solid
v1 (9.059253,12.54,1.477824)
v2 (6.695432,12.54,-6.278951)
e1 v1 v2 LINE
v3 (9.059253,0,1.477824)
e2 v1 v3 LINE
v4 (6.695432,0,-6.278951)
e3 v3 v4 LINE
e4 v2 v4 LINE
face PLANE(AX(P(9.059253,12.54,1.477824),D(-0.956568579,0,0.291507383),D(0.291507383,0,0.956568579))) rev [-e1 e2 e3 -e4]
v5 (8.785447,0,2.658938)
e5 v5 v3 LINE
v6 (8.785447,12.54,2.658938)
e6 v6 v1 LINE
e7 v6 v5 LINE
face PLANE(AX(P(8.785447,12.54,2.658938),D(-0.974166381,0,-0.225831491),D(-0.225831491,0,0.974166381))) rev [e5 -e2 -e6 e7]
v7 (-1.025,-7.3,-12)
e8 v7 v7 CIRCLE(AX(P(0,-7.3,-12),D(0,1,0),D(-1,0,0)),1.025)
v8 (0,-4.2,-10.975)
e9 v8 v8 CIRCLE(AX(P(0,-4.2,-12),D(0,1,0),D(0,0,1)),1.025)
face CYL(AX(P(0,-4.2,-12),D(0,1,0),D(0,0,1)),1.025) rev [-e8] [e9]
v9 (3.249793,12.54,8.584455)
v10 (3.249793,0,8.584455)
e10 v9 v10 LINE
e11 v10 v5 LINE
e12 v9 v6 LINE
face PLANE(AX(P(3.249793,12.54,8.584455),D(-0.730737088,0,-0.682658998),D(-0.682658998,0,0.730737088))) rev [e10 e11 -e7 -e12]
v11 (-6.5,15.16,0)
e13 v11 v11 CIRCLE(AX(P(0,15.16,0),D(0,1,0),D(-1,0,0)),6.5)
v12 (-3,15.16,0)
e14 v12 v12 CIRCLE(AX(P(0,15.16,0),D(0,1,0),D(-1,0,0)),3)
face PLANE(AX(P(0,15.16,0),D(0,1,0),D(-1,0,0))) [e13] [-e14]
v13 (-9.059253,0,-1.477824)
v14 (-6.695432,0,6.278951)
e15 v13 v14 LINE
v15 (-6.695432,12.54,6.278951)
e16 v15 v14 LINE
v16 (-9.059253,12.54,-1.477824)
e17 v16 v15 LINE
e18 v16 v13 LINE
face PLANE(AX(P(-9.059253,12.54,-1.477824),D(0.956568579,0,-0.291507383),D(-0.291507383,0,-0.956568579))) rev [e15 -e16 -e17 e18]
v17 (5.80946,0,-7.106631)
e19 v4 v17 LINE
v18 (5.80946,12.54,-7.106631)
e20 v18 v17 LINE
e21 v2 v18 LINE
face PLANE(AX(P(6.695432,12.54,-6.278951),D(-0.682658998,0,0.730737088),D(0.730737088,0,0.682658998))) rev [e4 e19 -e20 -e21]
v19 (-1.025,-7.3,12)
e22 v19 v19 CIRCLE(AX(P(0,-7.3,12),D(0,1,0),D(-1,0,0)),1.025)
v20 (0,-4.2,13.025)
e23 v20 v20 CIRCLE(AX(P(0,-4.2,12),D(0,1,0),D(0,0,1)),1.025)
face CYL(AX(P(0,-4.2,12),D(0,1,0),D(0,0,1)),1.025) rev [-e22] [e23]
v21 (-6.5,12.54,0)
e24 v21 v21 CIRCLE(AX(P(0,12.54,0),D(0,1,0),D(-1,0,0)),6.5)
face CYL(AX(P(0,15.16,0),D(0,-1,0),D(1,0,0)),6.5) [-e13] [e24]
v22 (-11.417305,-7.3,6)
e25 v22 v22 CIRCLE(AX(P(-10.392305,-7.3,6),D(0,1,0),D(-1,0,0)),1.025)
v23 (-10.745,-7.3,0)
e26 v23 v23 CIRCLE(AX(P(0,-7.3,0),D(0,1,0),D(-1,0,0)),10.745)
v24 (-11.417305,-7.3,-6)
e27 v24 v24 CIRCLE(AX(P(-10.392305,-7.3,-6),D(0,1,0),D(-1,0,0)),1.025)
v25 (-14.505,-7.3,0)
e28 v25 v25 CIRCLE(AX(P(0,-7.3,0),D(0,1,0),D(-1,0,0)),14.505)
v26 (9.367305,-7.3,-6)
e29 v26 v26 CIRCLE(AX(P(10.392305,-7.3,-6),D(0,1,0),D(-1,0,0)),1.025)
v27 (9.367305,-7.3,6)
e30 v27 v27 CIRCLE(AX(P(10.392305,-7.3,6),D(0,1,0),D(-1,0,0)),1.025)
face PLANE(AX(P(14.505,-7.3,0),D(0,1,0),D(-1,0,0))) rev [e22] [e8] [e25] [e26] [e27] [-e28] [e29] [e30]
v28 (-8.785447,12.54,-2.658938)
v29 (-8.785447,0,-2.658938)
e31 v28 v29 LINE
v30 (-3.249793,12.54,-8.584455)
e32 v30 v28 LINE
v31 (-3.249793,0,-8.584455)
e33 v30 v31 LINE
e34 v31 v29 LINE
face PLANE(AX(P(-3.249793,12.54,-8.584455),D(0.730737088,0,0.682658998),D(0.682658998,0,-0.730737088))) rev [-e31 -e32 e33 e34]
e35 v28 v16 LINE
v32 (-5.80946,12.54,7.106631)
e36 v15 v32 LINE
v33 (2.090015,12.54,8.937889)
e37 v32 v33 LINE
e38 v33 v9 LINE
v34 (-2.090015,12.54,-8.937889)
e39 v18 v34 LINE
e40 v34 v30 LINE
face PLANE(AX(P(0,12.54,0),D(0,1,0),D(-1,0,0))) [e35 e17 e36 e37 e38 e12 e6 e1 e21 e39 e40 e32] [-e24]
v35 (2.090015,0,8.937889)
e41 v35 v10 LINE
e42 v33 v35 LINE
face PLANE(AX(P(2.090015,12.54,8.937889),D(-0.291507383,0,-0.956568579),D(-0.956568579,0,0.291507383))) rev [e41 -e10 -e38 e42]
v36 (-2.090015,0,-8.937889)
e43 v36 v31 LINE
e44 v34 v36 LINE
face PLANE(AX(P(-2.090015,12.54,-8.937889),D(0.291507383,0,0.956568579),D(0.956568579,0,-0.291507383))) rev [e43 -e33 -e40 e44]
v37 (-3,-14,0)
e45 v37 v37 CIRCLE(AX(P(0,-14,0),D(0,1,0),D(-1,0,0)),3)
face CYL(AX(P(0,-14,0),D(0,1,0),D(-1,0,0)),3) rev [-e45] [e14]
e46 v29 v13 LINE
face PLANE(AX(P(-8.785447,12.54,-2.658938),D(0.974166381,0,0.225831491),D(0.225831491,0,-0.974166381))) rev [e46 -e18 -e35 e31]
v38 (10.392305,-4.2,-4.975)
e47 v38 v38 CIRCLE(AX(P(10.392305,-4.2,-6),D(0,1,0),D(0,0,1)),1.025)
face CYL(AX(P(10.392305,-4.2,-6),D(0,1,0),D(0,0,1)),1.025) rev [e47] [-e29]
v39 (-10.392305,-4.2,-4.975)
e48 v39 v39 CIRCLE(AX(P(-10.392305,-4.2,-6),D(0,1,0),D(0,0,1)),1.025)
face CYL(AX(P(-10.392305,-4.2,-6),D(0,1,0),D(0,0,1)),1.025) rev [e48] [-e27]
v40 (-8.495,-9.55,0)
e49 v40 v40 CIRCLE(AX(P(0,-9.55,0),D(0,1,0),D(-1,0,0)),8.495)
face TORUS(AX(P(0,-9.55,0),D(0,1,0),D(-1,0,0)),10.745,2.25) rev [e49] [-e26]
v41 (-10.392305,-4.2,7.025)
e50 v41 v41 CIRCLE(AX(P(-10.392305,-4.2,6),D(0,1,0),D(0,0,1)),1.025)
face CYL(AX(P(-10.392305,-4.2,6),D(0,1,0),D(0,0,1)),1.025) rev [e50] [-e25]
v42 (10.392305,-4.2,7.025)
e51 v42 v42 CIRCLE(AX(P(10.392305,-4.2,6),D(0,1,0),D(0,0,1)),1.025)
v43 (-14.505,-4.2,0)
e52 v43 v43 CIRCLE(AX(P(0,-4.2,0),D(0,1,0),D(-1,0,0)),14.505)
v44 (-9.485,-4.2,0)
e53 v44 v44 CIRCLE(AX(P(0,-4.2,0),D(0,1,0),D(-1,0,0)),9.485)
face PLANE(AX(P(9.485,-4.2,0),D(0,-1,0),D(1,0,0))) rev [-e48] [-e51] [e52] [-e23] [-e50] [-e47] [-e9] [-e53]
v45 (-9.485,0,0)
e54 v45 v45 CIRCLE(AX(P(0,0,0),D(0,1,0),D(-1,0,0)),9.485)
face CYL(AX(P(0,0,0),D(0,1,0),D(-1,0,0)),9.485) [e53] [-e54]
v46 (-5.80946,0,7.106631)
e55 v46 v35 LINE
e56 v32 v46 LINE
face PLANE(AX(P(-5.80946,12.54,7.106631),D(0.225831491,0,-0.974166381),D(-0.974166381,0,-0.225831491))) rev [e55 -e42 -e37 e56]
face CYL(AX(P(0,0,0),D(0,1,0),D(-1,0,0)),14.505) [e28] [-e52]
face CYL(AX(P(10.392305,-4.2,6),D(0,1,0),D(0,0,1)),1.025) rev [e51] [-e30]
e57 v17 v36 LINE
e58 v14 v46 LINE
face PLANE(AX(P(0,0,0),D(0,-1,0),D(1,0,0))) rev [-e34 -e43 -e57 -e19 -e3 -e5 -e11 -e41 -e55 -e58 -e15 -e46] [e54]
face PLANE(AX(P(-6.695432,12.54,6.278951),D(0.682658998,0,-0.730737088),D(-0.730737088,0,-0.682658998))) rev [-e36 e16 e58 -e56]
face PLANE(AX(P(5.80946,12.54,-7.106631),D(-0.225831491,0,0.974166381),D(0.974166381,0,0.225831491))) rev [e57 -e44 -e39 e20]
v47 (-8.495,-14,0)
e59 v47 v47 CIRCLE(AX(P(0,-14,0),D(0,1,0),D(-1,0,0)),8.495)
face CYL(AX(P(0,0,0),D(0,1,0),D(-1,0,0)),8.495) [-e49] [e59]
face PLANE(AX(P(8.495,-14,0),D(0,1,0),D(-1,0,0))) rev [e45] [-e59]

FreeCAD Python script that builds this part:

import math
import FreeCAD as App
import Part
import Sketcher
from FreeCAD import Vector

doc = App.newDocument("Part")
body = doc.addObject("PartDesign::Body", "Body")

# Sketch on XY plane
sketch1 = body.newObject("Sketcher::SketchObject", "Sketch")
sketch1.AttachmentSupport = (doc.getObject("XY_Plane"), [""])
sketch1.MapMode = "FlatFace"
sketch1.addGeometry([
    Part.LineSegment(Vector(9.5, 0, 0), Vector(0, 0, 0)),  # 0
    Part.LineSegment(Vector(0, 0, 0), Vector(0, -14, 0)),  # 1
    Part.LineSegment(Vector(0, -14, 0), Vector(8.5, -14, 0)),  # 2
    Part.LineSegment(Vector(8.5, -14, 0), Vector(8.5, -9.6, 0)),  # 3
    Part.ArcOfCircle(Part.Circle(Vector(10.7, -9.5, 0), Vector(0, 0, 1), 2.2), math.radians(90), math.radians(180)),  # 4
    Part.LineSegment(Vector(10.7, -7.3, 0), Vector(14.5, -7.3, 0)),  # 5
    Part.LineSegment(Vector(14.5, -7.3, 0), Vector(14.5, -4.2, 0)),  # 6
    Part.LineSegment(Vector(14.5, -4.2, 0), Vector(9.5, -4.2, 0)),  # 7
    Part.LineSegment(Vector(9.5, -4.2, 0), Vector(9.5, 0, 0)),  # 8
], False)
sketch1.addConstraint([
    Sketcher.Constraint("Coincident", 0, 2, 1, 1),
    Sketcher.Constraint("Coincident", 1, 2, 2, 1),
    Sketcher.Constraint("Coincident", 2, 2, 3, 1),
    Sketcher.Constraint("Tangent", 3, 2, 4, 2),
    Sketcher.Constraint("Tangent", 4, 1, 5, 1),
    Sketcher.Constraint("Coincident", 5, 2, 6, 1),
    Sketcher.Constraint("Coincident", 6, 2, 7, 1),
    Sketcher.Constraint("Coincident", 7, 2, 8, 1),
    Sketcher.Constraint("Coincident", 8, 2, 0, 1),
    Sketcher.Constraint("Horizontal", 0),
    Sketcher.Constraint("Vertical", 1),
    Sketcher.Constraint("Horizontal", 2),
    Sketcher.Constraint("Vertical", 3),
    Sketcher.Constraint("Horizontal", 5),
    Sketcher.Constraint("Vertical", 6),
    Sketcher.Constraint("Horizontal", 7),
    Sketcher.Constraint("Vertical", 8),
    Sketcher.Constraint("Coincident", 0, 2, -1, 1),
    Sketcher.Constraint("DistanceY", 1, 2, 1, 1, 14.0),
    Sketcher.Constraint("Radius", 4, 2.25),
    Sketcher.Constraint("DistanceY", 6, 1, 6, 2, 3.1),
    Sketcher.Constraint("DistanceY", 8, 1, 8, 2, 4.2),
    Sketcher.Constraint("DistanceX", 5, 1, 5, 2, 3.76),
    Sketcher.Constraint("DistanceX", 7, 2, 7, 1, 5.02),
    Sketcher.Constraint("DistanceX", 0, 2, 0, 1, 9.485),
])
revolution = body.newObject("PartDesign::Revolution", "Revolution")
revolution.Profile = sketch1
revolution.ReferenceAxis = (sketch1, ["V_Axis"])
revolution.Angle = 360

# Sketch on XZ plane
sketch2 = body.newObject("Sketcher::SketchObject", "Sketch001")
sketch2.AttachmentSupport = (doc.getObject("XZ_Plane"), [""])
sketch2.MapMode = "FlatFace"
sketch2.addGeometry([
    Part.LineSegment(Vector(2.1, 8.9, 0), Vector(3.2, 8.6, 0)),  # 0
    Part.LineSegment(Vector(3.2, 8.6, 0), Vector(8.8, 2.7, 0)),  # 1
    Part.LineSegment(Vector(8.8, 2.7, 0), Vector(9.1, 1.5, 0)),  # 2
    Part.LineSegment(Vector(9.1, 1.5, 0), Vector(6.7, -6.3, 0)),  # 3
    Part.LineSegment(Vector(6.7, -6.3, 0), Vector(5.8, -7.1, 0)),  # 4
    Part.LineSegment(Vector(5.8, -7.1, 0), Vector(-2.1, -8.9, 0)),  # 5
    Part.LineSegment(Vector(-2.1, -8.9, 0), Vector(-3.2, -8.6, 0)),  # 6
    Part.LineSegment(Vector(-3.2, -8.6, 0), Vector(-8.8, -2.7, 0)),  # 7
    Part.LineSegment(Vector(-8.8, -2.7, 0), Vector(-9.1, -1.5, 0)),  # 8
    Part.LineSegment(Vector(-9.1, -1.5, 0), Vector(-6.7, 6.3, 0)),  # 9
    Part.LineSegment(Vector(-6.7, 6.3, 0), Vector(-5.8, 7.1, 0)),  # 10
    Part.LineSegment(Vector(-5.8, 7.1, 0), Vector(2.1, 8.9, 0)),  # 11
], False)
sketch2.addConstraint([
    Sketcher.Constraint("Coincident", 0, 2, 1, 1),
    Sketcher.Constraint("Coincident", 1, 2, 2, 1),
    Sketcher.Constraint("Coincident", 2, 2, 3, 1),
    Sketcher.Constraint("Coincident", 3, 2, 4, 1),
    Sketcher.Constraint("Coincident", 4, 2, 5, 1),
    Sketcher.Constraint("Coincident", 5, 2, 6, 1),
    Sketcher.Constraint("Coincident", 6, 2, 7, 1),
    Sketcher.Constraint("Coincident", 7, 2, 8, 1),
    Sketcher.Constraint("Coincident", 8, 2, 9, 1),
    Sketcher.Constraint("Coincident", 9, 2, 10, 1),
    Sketcher.Constraint("Coincident", 10, 2, 11, 1),
    Sketcher.Constraint("Coincident", 11, 2, 0, 1),
    Sketcher.Constraint("Symmetric", 0, 2, 6, 2, -1, 1),
    Sketcher.Constraint("Symmetric", 1, 2, 7, 2, -1, 1),
    Sketcher.Constraint("Symmetric", 2, 2, 8, 2, -1, 1),
    Sketcher.Constraint("Symmetric", 3, 2, 9, 2, -1, 1),
    Sketcher.Constraint("Symmetric", 4, 2, 10, 2, -1, 1),
    Sketcher.Constraint("Symmetric", 5, 2, 11, 2, -1, 1),
    Sketcher.Constraint("Perpendicular", 0, 3),
    Sketcher.Constraint("Perpendicular", 1, 4),
    Sketcher.Constraint("Perpendicular", 2, 5),
    Sketcher.Constraint("Equal", 0, 2),
    Sketcher.Constraint("Equal", 1, 3),
    Sketcher.Constraint("Equal", 2, 4),
    Sketcher.Constraint("Equal", 3, 5),
    Sketcher.Constraint("Distance", 1, 8.108959),
    Sketcher.Constraint("DistanceY", -1, 1, 1, 2, 2.658938),
    Sketcher.Constraint("DistanceX", -1, 1, 3, 2, 6.695432),
    Sketcher.Constraint("DistanceY", 3, 2, -1, 1, 6.278951),
    Sketcher.Constraint("DistanceX", -1, 1, 4, 2, 5.80946),
])
pad1 = body.newObject("PartDesign::Pad", "Pad")
pad1.Profile = sketch2
pad1.Length = 12.54
pad1.Reversed = True

# Sketch on XZ plane
sketch3 = body.newObject("Sketcher::SketchObject", "Sketch002")
sketch3.AttachmentSupport = (doc.getObject("XZ_Plane"), [""])
sketch3.MapMode = "FlatFace"
sketch3.AttachmentOffset = App.Placement(Vector(0, 0, -12.54), App.Rotation())
sketch3.addGeometry(Part.Circle(Vector(0, 0, 0), Vector(0, 0, 1), 6), False)
sketch3.addConstraint([
    Sketcher.Constraint("Coincident", 0, 3, -1, 1),
    Sketcher.Constraint("Diameter", 0, 13.0),
])
pad2 = body.newObject("PartDesign::Pad", "Pad001")
pad2.Profile = sketch3
pad2.Length = 2.62
pad2.Reversed = True

# Sketch on XZ plane
sketch4 = body.newObject("Sketcher::SketchObject", "Sketch003")
sketch4.AttachmentSupport = (doc.getObject("XZ_Plane"), [""])
sketch4.MapMode = "FlatFace"
sketch4.AttachmentOffset = App.Placement(Vector(0, 0, -15.16), App.Rotation())
sketch4.addGeometry(Part.Circle(Vector(0, 0, 0), Vector(0, 0, 1), 3), False)
sketch4.addConstraint([
    Sketcher.Constraint("Coincident", 0, 3, -1, 1),
    Sketcher.Constraint("Diameter", 0, 6.0),
])
pocket1 = body.newObject("PartDesign::Pocket", "Pocket")
pocket1.Profile = sketch4
pocket1.Type = "ThroughAll"
pocket1.Reversed = True

# Sketch on XZ plane
sketch5 = body.newObject("Sketcher::SketchObject", "Sketch004")
sketch5.AttachmentSupport = (doc.getObject("XZ_Plane"), [""])
sketch5.MapMode = "FlatFace"
sketch5.AttachmentOffset = App.Placement(Vector(0, 0, 4.2), App.Rotation())
sketch5.addGeometry([
    Part.Circle(Vector(0, 12, 0), Vector(0, 0, 1), 1),  # 0
    Part.Circle(Vector(-10.4, 6, 0), Vector(0, 0, 1), 1),  # 1
    Part.Circle(Vector(-10.4, -6, 0), Vector(0, 0, 1), 1),  # 2
    Part.Circle(Vector(0, -12, 0), Vector(0, 0, 1), 1),  # 3
    Part.Circle(Vector(10.4, -6, 0), Vector(0, 0, 1), 1),  # 4
    Part.Circle(Vector(10.4, 6, 0), Vector(0, 0, 1), 1),  # 5
    Part.Circle(Vector(0, 0, 0), Vector(0, 0, 1), 1),  # 6
], False)
sketch5.addConstraint([
    Sketcher.Constraint("Coincident", 6, 3, -1, 1),
    Sketcher.Constraint("Equal", 0, 1),
    Sketcher.Constraint("Equal", 1, 2),
    Sketcher.Constraint("Equal", 2, 3),
    Sketcher.Constraint("Equal", 3, 4),
    Sketcher.Constraint("Equal", 4, 5),
    Sketcher.Constraint("Equal", 5, 6),
    Sketcher.Constraint("Symmetric", 0, 3, 3, 3, -1, 1),
    Sketcher.Constraint("Symmetric", 1, 3, 4, 3, -1, 1),
    Sketcher.Constraint("Symmetric", 2, 3, 5, 3, -1, 1),
    Sketcher.Constraint("Symmetric", 2, 3, 4, 3, -2),
    Sketcher.Constraint("PointOnObject", 0, 3, -2),
    Sketcher.Constraint("Diameter", 0, 2.05),
    Sketcher.Constraint("DistanceY", -1, 1, 0, 3, 12.0),
    Sketcher.Constraint("DistanceY", -1, 1, 1, 3, 6.0),
    Sketcher.Constraint("DistanceX", 2, 3, 4, 3, 20.78461),
])
doc.recompute()
hole = body.newObject("PartDesign::Hole", "Hole")
hole.Profile = sketch5
hole.ThreadType = "None"
hole.Diameter = 2.05
hole.DepthType = "ThroughAll"
hole.Reversed = True

doc.recompute()
